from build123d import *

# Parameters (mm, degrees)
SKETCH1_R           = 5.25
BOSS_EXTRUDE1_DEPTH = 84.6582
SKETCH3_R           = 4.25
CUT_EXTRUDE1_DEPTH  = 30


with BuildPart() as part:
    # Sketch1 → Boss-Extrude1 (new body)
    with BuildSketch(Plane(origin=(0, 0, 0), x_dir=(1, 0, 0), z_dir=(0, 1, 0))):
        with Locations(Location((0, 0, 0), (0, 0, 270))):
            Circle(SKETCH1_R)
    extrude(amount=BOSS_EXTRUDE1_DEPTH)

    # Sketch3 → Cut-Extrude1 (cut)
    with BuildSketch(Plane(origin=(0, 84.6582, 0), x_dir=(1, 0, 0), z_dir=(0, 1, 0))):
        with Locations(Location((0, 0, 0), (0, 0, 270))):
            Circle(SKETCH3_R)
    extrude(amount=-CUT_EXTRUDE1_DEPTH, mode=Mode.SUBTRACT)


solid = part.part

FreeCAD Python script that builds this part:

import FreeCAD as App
import Part
import Sketcher

V = App.Vector

doc = App.newDocument("Part")
body = doc.addObject("PartDesign::Body", "Body")

# Sketch on XZ plane
sketch1 = body.newObject("Sketcher::SketchObject", "Sketch")
sketch1.AttachmentSupport = (doc.getObject("XZ_Plane"), [""])
sketch1.MapMode = "FlatFace"
sketch1.addGeometry(Part.Circle(V(0, 0, 0), V(0, 0, 1), 5.25), False)
sketch1.addConstraint(Sketcher.Constraint("Coincident", 0, 3, -1, 1))
sketch1.addConstraint(Sketcher.Constraint("Diameter", 0, 10.5))
pad1 = body.newObject("PartDesign::Pad", "Pad")
pad1.Profile = sketch1
pad1.Length = 84.6582
pad1.Reversed = True

# Sketch on XZ plane
sketch2 = body.newObject("Sketcher::SketchObject", "Sketch001")
sketch2.AttachmentSupport = (doc.getObject("XZ_Plane"), [""])
sketch2.MapMode = "FlatFace"
sketch2.AttachmentOffset = App.Placement(V(0, 0, -84.6582), App.Rotation())
sketch2.addGeometry(Part.Circle(V(0, 0, 0), V(0, 0, 1), 4.25), False)
sketch2.addConstraint(Sketcher.Constraint("Coincident", 0, 3, -1, 1))
sketch2.addConstraint(Sketcher.Constraint("Diameter", 0, 8.5))
pocket1 = body.newObject("PartDesign::Pocket", "Pocket")
pocket1.Profile = sketch2
pocket1.Length = 30
pocket1.Reversed = True

doc.recompute()
